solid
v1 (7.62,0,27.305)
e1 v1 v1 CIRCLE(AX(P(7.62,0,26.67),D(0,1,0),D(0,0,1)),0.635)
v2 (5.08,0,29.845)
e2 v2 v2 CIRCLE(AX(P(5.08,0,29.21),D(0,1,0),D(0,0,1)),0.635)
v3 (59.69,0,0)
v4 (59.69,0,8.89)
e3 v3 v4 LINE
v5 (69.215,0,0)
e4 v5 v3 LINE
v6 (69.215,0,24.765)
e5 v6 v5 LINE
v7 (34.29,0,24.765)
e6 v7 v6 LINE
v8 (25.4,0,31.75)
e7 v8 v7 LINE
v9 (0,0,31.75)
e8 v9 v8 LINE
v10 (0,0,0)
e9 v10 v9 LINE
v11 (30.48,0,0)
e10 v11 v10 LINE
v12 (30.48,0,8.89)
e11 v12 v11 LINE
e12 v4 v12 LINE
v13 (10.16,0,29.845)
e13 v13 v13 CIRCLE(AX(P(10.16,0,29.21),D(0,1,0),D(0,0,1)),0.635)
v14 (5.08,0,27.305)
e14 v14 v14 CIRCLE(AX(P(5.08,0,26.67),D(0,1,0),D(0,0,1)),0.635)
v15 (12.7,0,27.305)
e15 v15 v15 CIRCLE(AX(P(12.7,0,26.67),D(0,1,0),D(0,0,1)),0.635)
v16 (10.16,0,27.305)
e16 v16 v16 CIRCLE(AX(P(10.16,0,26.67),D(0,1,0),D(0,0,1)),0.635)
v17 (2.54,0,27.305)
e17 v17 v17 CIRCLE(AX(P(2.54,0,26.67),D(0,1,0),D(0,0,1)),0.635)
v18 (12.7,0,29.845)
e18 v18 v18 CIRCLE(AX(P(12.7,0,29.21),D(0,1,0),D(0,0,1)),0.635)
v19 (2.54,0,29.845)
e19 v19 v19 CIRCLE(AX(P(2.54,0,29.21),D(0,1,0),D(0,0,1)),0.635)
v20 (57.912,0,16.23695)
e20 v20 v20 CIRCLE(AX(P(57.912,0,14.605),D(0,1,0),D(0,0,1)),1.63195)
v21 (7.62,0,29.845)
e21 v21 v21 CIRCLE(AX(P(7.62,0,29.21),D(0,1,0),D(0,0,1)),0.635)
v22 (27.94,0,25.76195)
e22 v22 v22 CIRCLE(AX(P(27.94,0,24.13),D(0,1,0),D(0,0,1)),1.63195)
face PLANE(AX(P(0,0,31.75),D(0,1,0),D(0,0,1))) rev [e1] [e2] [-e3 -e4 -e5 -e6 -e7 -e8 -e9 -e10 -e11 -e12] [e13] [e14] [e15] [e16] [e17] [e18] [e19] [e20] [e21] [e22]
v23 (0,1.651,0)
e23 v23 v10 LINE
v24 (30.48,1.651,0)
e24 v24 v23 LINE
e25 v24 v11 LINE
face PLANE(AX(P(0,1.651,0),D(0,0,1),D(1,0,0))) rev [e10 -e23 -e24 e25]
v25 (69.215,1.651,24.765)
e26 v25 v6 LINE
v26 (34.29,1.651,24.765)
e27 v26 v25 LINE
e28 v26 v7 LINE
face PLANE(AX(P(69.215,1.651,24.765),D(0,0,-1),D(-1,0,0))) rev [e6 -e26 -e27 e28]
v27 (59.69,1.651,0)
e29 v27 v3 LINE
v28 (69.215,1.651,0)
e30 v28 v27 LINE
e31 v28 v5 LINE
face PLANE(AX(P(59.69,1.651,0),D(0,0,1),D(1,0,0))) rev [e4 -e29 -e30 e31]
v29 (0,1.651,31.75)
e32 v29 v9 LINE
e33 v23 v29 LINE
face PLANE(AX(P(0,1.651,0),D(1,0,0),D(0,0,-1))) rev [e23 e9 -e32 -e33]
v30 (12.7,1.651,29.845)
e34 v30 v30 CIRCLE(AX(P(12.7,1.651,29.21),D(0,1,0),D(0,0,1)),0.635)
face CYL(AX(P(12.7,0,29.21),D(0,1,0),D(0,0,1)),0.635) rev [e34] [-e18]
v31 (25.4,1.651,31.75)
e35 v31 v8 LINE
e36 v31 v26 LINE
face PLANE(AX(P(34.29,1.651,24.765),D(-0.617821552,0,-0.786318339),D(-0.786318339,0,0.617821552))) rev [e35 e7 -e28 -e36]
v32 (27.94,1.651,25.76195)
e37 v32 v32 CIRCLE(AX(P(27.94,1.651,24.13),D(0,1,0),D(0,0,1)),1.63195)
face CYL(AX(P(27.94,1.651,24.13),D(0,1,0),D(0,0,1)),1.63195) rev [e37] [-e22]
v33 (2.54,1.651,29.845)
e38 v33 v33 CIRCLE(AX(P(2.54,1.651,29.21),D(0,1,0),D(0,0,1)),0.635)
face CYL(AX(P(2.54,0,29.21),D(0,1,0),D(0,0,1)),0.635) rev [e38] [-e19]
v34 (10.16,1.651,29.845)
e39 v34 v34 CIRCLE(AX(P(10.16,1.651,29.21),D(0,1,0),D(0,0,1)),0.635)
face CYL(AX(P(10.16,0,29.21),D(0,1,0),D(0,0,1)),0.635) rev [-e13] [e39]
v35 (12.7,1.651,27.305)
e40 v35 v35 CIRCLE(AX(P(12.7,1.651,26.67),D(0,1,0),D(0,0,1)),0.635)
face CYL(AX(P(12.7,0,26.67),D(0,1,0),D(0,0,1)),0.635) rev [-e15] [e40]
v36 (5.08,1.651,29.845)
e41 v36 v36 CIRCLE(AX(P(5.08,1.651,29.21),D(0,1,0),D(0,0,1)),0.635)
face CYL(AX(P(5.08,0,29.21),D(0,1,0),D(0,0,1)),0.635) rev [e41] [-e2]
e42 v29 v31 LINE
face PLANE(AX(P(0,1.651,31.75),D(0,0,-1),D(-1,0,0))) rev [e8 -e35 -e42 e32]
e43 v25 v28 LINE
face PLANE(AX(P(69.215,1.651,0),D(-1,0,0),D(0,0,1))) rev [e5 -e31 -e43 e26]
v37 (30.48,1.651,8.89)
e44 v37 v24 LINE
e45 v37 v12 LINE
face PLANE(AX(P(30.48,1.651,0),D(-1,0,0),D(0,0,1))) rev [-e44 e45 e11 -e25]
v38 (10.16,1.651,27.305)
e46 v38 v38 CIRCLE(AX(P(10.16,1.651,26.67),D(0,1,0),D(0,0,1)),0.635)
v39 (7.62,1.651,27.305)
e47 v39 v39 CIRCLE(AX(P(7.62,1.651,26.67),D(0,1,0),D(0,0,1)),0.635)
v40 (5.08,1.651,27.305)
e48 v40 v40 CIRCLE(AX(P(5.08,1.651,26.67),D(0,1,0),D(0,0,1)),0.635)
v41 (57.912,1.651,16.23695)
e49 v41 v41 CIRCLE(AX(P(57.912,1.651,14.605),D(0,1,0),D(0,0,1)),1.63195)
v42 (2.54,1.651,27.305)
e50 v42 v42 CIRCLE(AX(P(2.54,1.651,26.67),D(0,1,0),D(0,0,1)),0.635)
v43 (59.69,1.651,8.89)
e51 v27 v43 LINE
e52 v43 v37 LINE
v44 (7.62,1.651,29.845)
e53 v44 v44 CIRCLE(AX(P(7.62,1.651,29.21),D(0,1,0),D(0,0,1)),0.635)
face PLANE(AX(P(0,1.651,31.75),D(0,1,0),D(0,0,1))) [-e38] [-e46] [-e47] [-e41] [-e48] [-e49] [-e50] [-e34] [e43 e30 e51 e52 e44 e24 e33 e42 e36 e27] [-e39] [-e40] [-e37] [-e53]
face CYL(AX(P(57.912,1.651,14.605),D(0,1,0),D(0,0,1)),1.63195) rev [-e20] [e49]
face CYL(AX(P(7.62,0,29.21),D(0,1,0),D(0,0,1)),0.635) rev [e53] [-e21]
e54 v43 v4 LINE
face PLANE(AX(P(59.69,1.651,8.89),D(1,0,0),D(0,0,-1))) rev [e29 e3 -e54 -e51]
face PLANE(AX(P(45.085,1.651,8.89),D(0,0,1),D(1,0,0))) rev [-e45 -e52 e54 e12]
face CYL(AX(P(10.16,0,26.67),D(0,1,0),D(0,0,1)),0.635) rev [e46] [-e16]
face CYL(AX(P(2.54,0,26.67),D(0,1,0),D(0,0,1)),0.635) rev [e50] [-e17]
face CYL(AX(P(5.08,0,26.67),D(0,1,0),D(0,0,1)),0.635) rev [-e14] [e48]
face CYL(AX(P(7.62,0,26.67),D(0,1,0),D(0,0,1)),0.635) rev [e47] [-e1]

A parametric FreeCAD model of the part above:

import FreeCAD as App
import Part
import Sketcher

V = App.Vector
Q = App.Units.Quantity

doc = App.newDocument("Part")
body = doc.addObject("PartDesign::Body", "Body")

sketch1 = body.newObject("Sketcher::SketchObject", "Sketch")
sketch1.AttachmentSupport = (doc.getObject("XZ_Plane"), [""])
sketch1.MapMode = "FlatFace"
sketch1.addGeometry(Part.LineSegment(V(30, 0, 0), V(0, 0, 0)), False)
sketch1.addGeometry(Part.LineSegment(V(0, 0, 0), V(0, 32, 0)), False)
sketch1.addGeometry(Part.LineSegment(V(0, 32, 0), V(25, 32, 0)), False)
sketch1.addGeometry(Part.LineSegment(V(25, 32, 0), V(34, 25, 0)), False)
sketch1.addGeometry(Part.LineSegment(V(34, 25, 0), V(69, 25, 0)), False)
sketch1.addGeometry(Part.LineSegment(V(69, 25, 0), V(69, 0, 0)), False)
sketch1.addGeometry(Part.LineSegment(V(69, 0, 0), V(60, 0, 0)), False)
sketch1.addGeometry(Part.LineSegment(V(60, 0, 0), V(60, 9, 0)), False)
sketch1.addGeometry(Part.LineSegment(V(60, 9, 0), V(30, 9, 0)), False)
sketch1.addGeometry(Part.LineSegment(V(30, 9, 0), V(30, 0, 0)), False)
sketch1.addConstraint(Sketcher.Constraint("Coincident", 0, 2, 1, 1))
sketch1.addConstraint(Sketcher.Constraint("Coincident", 1, 2, 2, 1))
sketch1.addConstraint(Sketcher.Constraint("Coincident", 2, 2, 3, 1))
sketch1.addConstraint(Sketcher.Constraint("Coincident", 3, 2, 4, 1))
sketch1.addConstraint(Sketcher.Constraint("Coincident", 4, 2, 5, 1))
sketch1.addConstraint(Sketcher.Constraint("Coincident", 5, 2, 6, 1))
sketch1.addConstraint(Sketcher.Constraint("Coincident", 6, 2, 7, 1))
sketch1.addConstraint(Sketcher.Constraint("Coincident", 7, 2, 8, 1))
sketch1.addConstraint(Sketcher.Constraint("Coincident", 8, 2, 9, 1))
sketch1.addConstraint(Sketcher.Constraint("Coincident", 9, 2, 0, 1))
sketch1.addConstraint(Sketcher.Constraint("Horizontal", 0))
sketch1.addConstraint(Sketcher.Constraint("Vertical", 1))
sketch1.addConstraint(Sketcher.Constraint("Horizontal", 2))
sketch1.addConstraint(Sketcher.Constraint("Horizontal", 4))
sketch1.addConstraint(Sketcher.Constraint("Vertical", 5))
sketch1.addConstraint(Sketcher.Constraint("Horizontal", 6))
sketch1.addConstraint(Sketcher.Constraint("Vertical", 7))
sketch1.addConstraint(Sketcher.Constraint("Horizontal", 8))
sketch1.addConstraint(Sketcher.Constraint("Vertical", 9))
sketch1.addConstraint(Sketcher.Constraint("Coincident", 0, 2, -1, 1))
sketch1.addConstraint(Sketcher.Constraint("PointOnObject", 5, 2, -1))
sketch1.addConstraint(Sketcher.Constraint("DistanceX", 2, 1, 2, 2, Q("1 in")))
sketch1.addConstraint(Sketcher.Constraint("DistanceX", 0, 2, 0, 1, Q("1.2 in")))
sketch1.addConstraint(Sketcher.Constraint("DistanceX", 3, 2, 6, 2, Q("1 in")))
sketch1.addConstraint(Sketcher.Constraint("DistanceX", 8, 2, 8, 1, Q("1.15 in")))
sketch1.addConstraint(Sketcher.Constraint("DistanceY", 1, 1, 1, 2, Q("1.25 in")))
sketch1.addConstraint(Sketcher.Constraint("DistanceY", 7, 1, 7, 2, Q("0.35 in")))
sketch1.addConstraint(Sketcher.Constraint("DistanceX", 4, 1, 4, 2, Q("1.375 in")))
sketch1.addConstraint(Sketcher.Constraint("DistanceY", 5, 2, 5, 1, Q("0.975 in")))
pad1 = body.newObject("PartDesign::Pad", "Pad")
pad1.Profile = sketch1
pad1.Length = Q("0.065 in")
pad1.Reversed = True

sketch2 = body.newObject("Sketcher::SketchObject", "Sketch001")
sketch2.AttachmentSupport = (doc.getObject("XZ_Plane"), [""])
sketch2.MapMode = "FlatFace"
sketch2.AttachmentOffset = App.Placement(V(0, 0, -0.065 * 25.4), App.Rotation())
sketch2.addGeometry(Part.Circle(V(2.5, 29.2, 0), V(0, 0, 1), 0.6), False)
sketch2.addGeometry(Part.Circle(V(5.1, 29.2, 0), V(0, 0, 1), 0.6), False)
sketch2.addGeometry(Part.Circle(V(7.6, 29.2, 0), V(0, 0, 1), 0.6), False)
sketch2.addGeometry(Part.Circle(V(10.2, 29.2, 0), V(0, 0, 1), 0.6), False)
sketch2.addGeometry(Part.Circle(V(12.7, 29.2, 0), V(0, 0, 1), 0.6), False)
sketch2.addGeometry(Part.Circle(V(2.5, 26.7, 0), V(0, 0, 1), 0.6), False)
sketch2.addGeometry(Part.Circle(V(5.1, 26.7, 0), V(0, 0, 1), 0.6), False)
sketch2.addGeometry(Part.Circle(V(7.6, 26.7, 0), V(0, 0, 1), 0.6), False)
sketch2.addGeometry(Part.Circle(V(10.2, 26.7, 0), V(0, 0, 1), 0.6), False)
sketch2.addGeometry(Part.Circle(V(12.7, 26.7, 0), V(0, 0, 1), 0.6), False)
sketch2.addConstraint(Sketcher.Constraint("Equal", 0, 1))
sketch2.addConstraint(Sketcher.Constraint("Equal", 1, 2))
sketch2.addConstraint(Sketcher.Constraint("Equal", 2, 3))
sketch2.addConstraint(Sketcher.Constraint("Equal", 3, 4))
sketch2.addConstraint(Sketcher.Constraint("Equal", 4, 5))
sketch2.addConstraint(Sketcher.Constraint("Equal", 5, 6))
sketch2.addConstraint(Sketcher.Constraint("Equal", 6, 7))
sketch2.addConstraint(Sketcher.Constraint("Equal", 7, 8))
sketch2.addConstraint(Sketcher.Constraint("Equal", 8, 9))
sketch2.addConstraint(Sketcher.Constraint("Horizontal", 0, 3, 1, 3))
sketch2.addConstraint(Sketcher.Constraint("Horizontal", 1, 3, 2, 3))
sketch2.addConstraint(Sketcher.Constraint("Horizontal", 2, 3, 3, 3))
sketch2.addConstraint(Sketcher.Constraint("Horizontal", 3, 3, 4, 3))
sketch2.addConstraint(Sketcher.Constraint("Horizontal", 5, 3, 6, 3))
sketch2.addConstraint(Sketcher.Constraint("Horizontal", 6, 3, 7, 3))
sketch2.addConstraint(Sketcher.Constraint("Horizontal", 7, 3, 8, 3))
sketch2.addConstraint(Sketcher.Constraint("Horizontal", 8, 3, 9, 3))
sketch2.addConstraint(Sketcher.Constraint("Vertical", 0, 3, 5, 3))
sketch2.addConstraint(Sketcher.Constraint("Vertical", 1, 3, 6, 3))
sketch2.addConstraint(Sketcher.Constraint("Vertical", 2, 3, 7, 3))
sketch2.addConstraint(Sketcher.Constraint("Vertical", 3, 3, 8, 3))
sketch2.addConstraint(Sketcher.Constraint("Vertical", 4, 3, 9, 3))
sketch2.addConstraint(Sketcher.Constraint("Diameter", 0, Q("0.05 in")))
sketch2.addConstraint(Sketcher.Constraint("DistanceX", -1, 1, 0, 3, Q("0.1 in")))
sketch2.addConstraint(Sketcher.Constraint("DistanceX", -1, 1, 1, 3, Q("0.2 in")))
sketch2.addConstraint(Sketcher.Constraint("DistanceX", -1, 1, 2, 3, Q("0.3 in")))
sketch2.addConstraint(Sketcher.Constraint("DistanceX", -1, 1, 3, 3, Q("0.4 in")))
sketch2.addConstraint(Sketcher.Constraint("DistanceX", -1, 1, 4, 3, Q("0.5 in")))
sketch2.addConstraint(Sketcher.Constraint("DistanceY", 5, 3, 0, 3, Q("0.1 in")))
sketch2.addConstraint(Sketcher.Constraint("DistanceY", -1, 1, 0, 3, Q("1.15 in")))
pocket1 = body.newObject("PartDesign::Pocket", "Pocket")
pocket1.Profile = sketch2
pocket1.Type = "ThroughAll"
pocket1.Reversed = True

sketch3 = body.newObject("Sketcher::SketchObject", "Sketch002")
sketch3.AttachmentSupport = (doc.getObject("XZ_Plane"), [""])
sketch3.MapMode = "FlatFace"
sketch3.AttachmentOffset = App.Placement(V(0, 0, -0.065 * 25.4), App.Rotation())
sketch3.addGeometry(Part.Circle(V(27.9, 24.1, 0), V(0, 0, 1), 1.6), False)
sketch3.addGeometry(Part.Circle(V(57.9, 14.6, 0), V(0, 0, 1), 1.6), False)
sketch3.addConstraint(Sketcher.Constraint("Equal", 0, 1))
sketch3.addConstraint(Sketcher.Constraint("Diameter", 0, Q("0.1285 in")))
sketch3.addConstraint(Sketcher.Constraint("DistanceX", -1, 1, 0, 3, Q("1.1 in")))
sketch3.addConstraint(Sketcher.Constraint("DistanceY", -1, 1, 0, 3, Q("0.95 in")))
sketch3.addConstraint(Sketcher.Constraint("DistanceX", -1, 1, 1, 3, Q("2.28 in")))
sketch3.addConstraint(Sketcher.Constraint("DistanceY", -1, 1, 1, 3, Q("0.575 in")))
doc.recompute()
hole = body.newObject("PartDesign::Hole", "Hole")
hole.Profile = sketch3
hole.ThreadType = "None"
hole.Diameter = Q("0.1285 in")
hole.DepthType = "ThroughAll"
hole.Reversed = True

doc.recompute()
